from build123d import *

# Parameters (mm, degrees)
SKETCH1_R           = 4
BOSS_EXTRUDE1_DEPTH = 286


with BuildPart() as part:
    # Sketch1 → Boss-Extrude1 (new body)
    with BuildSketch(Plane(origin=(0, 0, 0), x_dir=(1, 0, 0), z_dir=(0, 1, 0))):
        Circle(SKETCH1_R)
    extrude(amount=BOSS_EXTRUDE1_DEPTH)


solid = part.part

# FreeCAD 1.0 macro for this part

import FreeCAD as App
import Part
import Sketcher

V = App.Vector

doc = App.newDocument("Part")
body = doc.addObject("PartDesign::Body", "Body")

# Sketch on XZ plane
sketch1 = body.newObject("Sketcher::SketchObject", "Sketch")
sketch1.AttachmentSupport = (doc.getObject("XZ_Plane"), [""])
sketch1.MapMode = "FlatFace"
sketch1.addGeometry(Part.Circle(V(0, 0, 0), V(0, 0, 1), 4), False)
sketch1.addConstraint([
    Sketcher.Constraint("Coincident", 0, 3, -1, 1),
    Sketcher.Constraint("Diameter", 0, 8.0),
])
pad1 = body.newObject("PartDesign::Pad", "Pad")
pad1.Profile = sketch1
pad1.Length = 286
pad1.Reversed = True

doc.recompute()
